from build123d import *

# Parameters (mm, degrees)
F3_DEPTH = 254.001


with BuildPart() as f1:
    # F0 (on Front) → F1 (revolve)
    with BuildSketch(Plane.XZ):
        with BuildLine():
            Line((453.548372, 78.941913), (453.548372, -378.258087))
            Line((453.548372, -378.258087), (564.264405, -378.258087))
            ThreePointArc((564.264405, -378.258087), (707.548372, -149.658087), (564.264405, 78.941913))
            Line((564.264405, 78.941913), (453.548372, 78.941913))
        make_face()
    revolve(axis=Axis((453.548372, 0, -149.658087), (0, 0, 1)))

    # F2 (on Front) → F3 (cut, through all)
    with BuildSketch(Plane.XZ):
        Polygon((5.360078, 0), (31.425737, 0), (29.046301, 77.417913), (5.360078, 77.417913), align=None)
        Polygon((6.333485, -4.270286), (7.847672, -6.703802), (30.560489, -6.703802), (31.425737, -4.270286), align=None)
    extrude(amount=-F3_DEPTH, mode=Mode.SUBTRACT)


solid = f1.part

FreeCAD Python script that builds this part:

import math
import FreeCAD as App
import Part
import Sketcher
from FreeCAD import Vector
Q = App.Units.Quantity

doc = App.newDocument("Part")
body = doc.addObject("PartDesign::Body", "Body")

sketch1 = body.newObject("Sketcher::SketchObject", "Sketch")
sketch1.AttachmentSupport = (doc.getObject("XZ_Plane"), [""])
sketch1.MapMode = "FlatFace"
sketch1.addGeometry([
    Part.LineSegment(Vector(454, 79, 0), Vector(454, -378, 0)),
    Part.LineSegment(Vector(454, -378, 0), Vector(564, -378, 0)),
    Part.ArcOfCircle(Part.Circle(Vector(454, -150, 0), Vector(0, 0, 1), 254), math.radians(-64), math.radians(64)),
    Part.LineSegment(Vector(564, 79, 0), Vector(454, 79, 0)),
], False)
sketch1.addGeometry(Part.LineSegment(Vector(454, -378, 0), Vector(454, 79, 0)), True)
sketch1.addConstraint([
    Sketcher.Constraint("Coincident", 0, 2, 1, 1),
    Sketcher.Constraint("Coincident", 1, 2, 2, 1),
    Sketcher.Constraint("Coincident", 2, 2, 3, 1),
    Sketcher.Constraint("Coincident", 3, 2, 0, 1),
    Sketcher.Constraint("Vertical", 0),
    Sketcher.Constraint("Horizontal", 1),
    Sketcher.Constraint("Horizontal", 3),
    Sketcher.Constraint("Vertical", 4),
    Sketcher.Constraint("Coincident", 4, 1, 0, 2),
    Sketcher.Constraint("Horizontal", 2, 2, 4, 2),
    Sketcher.Constraint("Vertical", 2, 3, 0, 2),
    Sketcher.Constraint("Vertical", 1, 2, 2, 2),
    Sketcher.Constraint("Radius", 2, Q("10 in")),
    Sketcher.Constraint("DistanceY", 0, 2, 0, 1, Q("18 in")),
    Sketcher.Constraint("DistanceX", -1, 1, 0, 2, 453.548372),
    Sketcher.Constraint("DistanceY", 2, 3, -1, 1, 149.658087),
])
revolution = body.newObject("PartDesign::Revolution", "Revolution")
revolution.Profile = sketch1
revolution.ReferenceAxis = (sketch1, ["Axis0"])
revolution.Angle = 360

sketch2 = body.newObject("Sketcher::SketchObject", "Sketch001")
sketch2.AttachmentSupport = (doc.getObject("XZ_Plane"), [""])
sketch2.MapMode = "FlatFace"
sketch2.addGeometry([
    Part.LineSegment(Vector(5.4, 0, 0), Vector(31.4, 0, 0)),
    Part.LineSegment(Vector(31.4, 0, 0), Vector(29, 77.4, 0)),
    Part.LineSegment(Vector(29, 77.4, 0), Vector(5.4, 77.4, 0)),
    Part.LineSegment(Vector(5.4, 77.4, 0), Vector(5.4, 0, 0)),
    Part.LineSegment(Vector(6.3, -4.3, 0), Vector(7.8, -6.7, 0)),
    Part.LineSegment(Vector(7.8, -6.7, 0), Vector(30.6, -6.7, 0)),
    Part.LineSegment(Vector(30.6, -6.7, 0), Vector(31.4, -4.3, 0)),
    Part.LineSegment(Vector(31.4, -4.3, 0), Vector(6.3, -4.3, 0)),
], False)
sketch2.addConstraint([
    Sketcher.Constraint("Coincident", 0, 2, 1, 1),
    Sketcher.Constraint("Coincident", 1, 2, 2, 1),
    Sketcher.Constraint("Coincident", 2, 2, 3, 1),
    Sketcher.Constraint("Coincident", 3, 2, 0, 1),
    Sketcher.Constraint("Coincident", 4, 2, 5, 1),
    Sketcher.Constraint("Coincident", 5, 2, 6, 1),
    Sketcher.Constraint("Coincident", 6, 2, 7, 1),
    Sketcher.Constraint("Coincident", 7, 2, 4, 1),
    Sketcher.Constraint("Horizontal", 0),
    Sketcher.Constraint("Horizontal", 2),
    Sketcher.Constraint("Vertical", 3),
    Sketcher.Constraint("Horizontal", 5),
    Sketcher.Constraint("Horizontal", 7),
    Sketcher.Constraint("PointOnObject", 0, 2, -1),
    Sketcher.Constraint("Vertical", 0, 2, 6, 2),
    Sketcher.Constraint("DistanceX", 0, 1, 0, 2, 26.065659),
    Sketcher.Constraint("DistanceX", -1, 1, 1, 2, 29.046301),
    Sketcher.Constraint("DistanceY", 4, 2, -1, 1, 6.703802),
    Sketcher.Constraint("DistanceY", 6, 2, 1, 2, 81.688199),
    Sketcher.Constraint("Distance", 1, 77.45447),
    Sketcher.Constraint("Distance", 4, 2.866141),
    Sketcher.Constraint("Distance", 6, 2.582761),
    Sketcher.Constraint("DistanceX", 2, 2, 2, 1, 23.686223),
    Sketcher.Constraint("DistanceX", 5, 1, 5, 2, 22.712817),
])
pocket1 = body.newObject("PartDesign::Pocket", "Pocket")
pocket1.Profile = sketch2
pocket1.Type = "ThroughAll"

doc.recompute()
